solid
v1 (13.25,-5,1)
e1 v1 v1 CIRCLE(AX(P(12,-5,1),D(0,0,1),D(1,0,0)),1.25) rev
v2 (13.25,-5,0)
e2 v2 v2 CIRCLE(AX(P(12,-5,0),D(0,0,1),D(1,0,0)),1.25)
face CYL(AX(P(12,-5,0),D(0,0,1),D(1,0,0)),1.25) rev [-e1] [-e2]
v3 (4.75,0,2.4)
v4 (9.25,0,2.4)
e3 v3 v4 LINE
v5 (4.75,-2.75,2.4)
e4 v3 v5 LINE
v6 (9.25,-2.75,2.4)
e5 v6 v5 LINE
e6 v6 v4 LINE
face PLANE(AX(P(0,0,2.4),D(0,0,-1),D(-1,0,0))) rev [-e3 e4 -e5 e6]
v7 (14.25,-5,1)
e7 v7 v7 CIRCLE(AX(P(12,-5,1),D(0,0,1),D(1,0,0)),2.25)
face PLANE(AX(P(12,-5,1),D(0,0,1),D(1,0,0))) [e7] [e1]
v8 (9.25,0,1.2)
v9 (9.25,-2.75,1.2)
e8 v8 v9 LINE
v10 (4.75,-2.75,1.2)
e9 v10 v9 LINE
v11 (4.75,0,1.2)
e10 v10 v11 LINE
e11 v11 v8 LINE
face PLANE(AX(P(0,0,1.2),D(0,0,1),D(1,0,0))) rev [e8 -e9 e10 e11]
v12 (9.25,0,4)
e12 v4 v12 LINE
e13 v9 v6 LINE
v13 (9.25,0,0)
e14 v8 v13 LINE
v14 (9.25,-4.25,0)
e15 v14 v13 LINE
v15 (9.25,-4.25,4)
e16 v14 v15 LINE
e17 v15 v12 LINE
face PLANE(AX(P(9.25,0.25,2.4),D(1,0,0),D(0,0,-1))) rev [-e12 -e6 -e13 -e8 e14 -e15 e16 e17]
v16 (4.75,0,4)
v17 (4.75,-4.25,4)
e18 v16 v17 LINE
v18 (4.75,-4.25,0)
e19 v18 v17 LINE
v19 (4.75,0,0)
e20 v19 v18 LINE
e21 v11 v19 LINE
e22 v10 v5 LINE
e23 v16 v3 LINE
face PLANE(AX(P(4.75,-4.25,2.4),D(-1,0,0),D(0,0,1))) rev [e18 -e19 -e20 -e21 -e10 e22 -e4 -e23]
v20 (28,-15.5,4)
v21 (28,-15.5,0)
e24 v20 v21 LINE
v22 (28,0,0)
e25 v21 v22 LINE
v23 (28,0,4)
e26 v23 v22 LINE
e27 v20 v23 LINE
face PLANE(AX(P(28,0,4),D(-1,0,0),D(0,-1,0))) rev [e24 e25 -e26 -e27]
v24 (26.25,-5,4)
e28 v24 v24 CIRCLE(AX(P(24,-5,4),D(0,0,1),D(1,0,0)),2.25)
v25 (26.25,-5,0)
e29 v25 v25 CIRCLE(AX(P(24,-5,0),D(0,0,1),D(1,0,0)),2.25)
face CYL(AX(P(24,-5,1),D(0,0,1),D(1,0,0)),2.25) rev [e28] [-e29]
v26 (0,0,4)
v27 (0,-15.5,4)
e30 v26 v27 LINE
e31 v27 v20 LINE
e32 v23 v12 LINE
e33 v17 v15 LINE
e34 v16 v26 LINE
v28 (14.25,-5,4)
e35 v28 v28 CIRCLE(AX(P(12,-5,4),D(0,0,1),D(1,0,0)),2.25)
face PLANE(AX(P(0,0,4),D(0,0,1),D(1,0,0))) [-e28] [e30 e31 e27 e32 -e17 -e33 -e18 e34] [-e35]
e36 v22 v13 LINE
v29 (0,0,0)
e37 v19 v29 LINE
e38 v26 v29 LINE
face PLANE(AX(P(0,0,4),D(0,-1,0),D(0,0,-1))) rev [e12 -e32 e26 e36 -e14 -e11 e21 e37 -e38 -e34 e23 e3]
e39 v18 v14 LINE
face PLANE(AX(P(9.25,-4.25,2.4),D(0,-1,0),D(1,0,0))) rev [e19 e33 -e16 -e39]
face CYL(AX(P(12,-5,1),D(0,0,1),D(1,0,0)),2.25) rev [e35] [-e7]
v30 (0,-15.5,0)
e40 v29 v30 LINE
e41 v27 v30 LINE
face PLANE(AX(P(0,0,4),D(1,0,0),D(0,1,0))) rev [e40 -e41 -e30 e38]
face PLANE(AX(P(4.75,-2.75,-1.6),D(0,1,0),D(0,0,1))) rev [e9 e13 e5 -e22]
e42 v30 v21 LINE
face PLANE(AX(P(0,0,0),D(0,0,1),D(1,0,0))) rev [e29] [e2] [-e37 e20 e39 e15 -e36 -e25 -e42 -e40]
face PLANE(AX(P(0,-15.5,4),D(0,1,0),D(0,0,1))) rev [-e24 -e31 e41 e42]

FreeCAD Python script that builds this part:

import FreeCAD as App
import Part
import Sketcher
from FreeCAD import Vector


def add_polygon(sketch, points):
    """Adds a closed chain of lines whose ends are joined by coincident constraints."""
    first, n = sketch.GeometryCount, len(points)
    for a, b in zip(points, points[1:] + points[:1]):
        sketch.addGeometry(Part.LineSegment(App.Vector(*a, 0), App.Vector(*b, 0)), False)
    for i in range(n):
        sketch.addConstraint(Sketcher.Constraint("Coincident", first + i, 2, first + (i + 1) % n, 1))

doc = App.newDocument("Part")
body = doc.addObject("PartDesign::Body", "Body")

sketch1 = body.newObject("Sketcher::SketchObject", "Sketch")
sketch1.AttachmentSupport = (doc.getObject("XY_Plane"), [""])
sketch1.MapMode = "FlatFace"
add_polygon(sketch1, [(0, 0), (0, -16), (28, -16), (28, 0)])
sketch1.addConstraint([
    Sketcher.Constraint("Vertical", 0),
    Sketcher.Constraint("Horizontal", 1),
    Sketcher.Constraint("Vertical", 2),
    Sketcher.Constraint("Horizontal", 3),
    Sketcher.Constraint("Coincident", 3, 2, -1, 1),
    Sketcher.Constraint("DistanceX", 1, 1, 1, 2, 28.0),
    Sketcher.Constraint("DistanceY", 0, 2, 0, 1, 15.5),
])
pad1 = body.newObject("PartDesign::Pad", "Pad")
pad1.Profile = sketch1
pad1.Length = 4

sketch2 = body.newObject("Sketcher::SketchObject", "Sketch001")
sketch2.AttachmentSupport = (doc.getObject("XY_Plane"), [""])
sketch2.MapMode = "FlatFace"
sketch2.AttachmentOffset = App.Placement(Vector(0, 0, 4), App.Rotation())
sketch2.addGeometry([
    Part.Circle(Vector(12, -5, 0), Vector(0, 0, 1), 1.2),
    Part.Circle(Vector(24, -5, 0), Vector(0, 0, 1), 1.2),
], False)
sketch2.addConstraint([
    Sketcher.Constraint("Equal", 0, 1),
    Sketcher.Constraint("Horizontal", 0, 3, 1, 3),
    Sketcher.Constraint("Diameter", 0, 2.5),
    Sketcher.Constraint("DistanceX", -1, 1, 0, 3, 12.0),
    Sketcher.Constraint("DistanceY", 0, 3, -1, 1, 5.0),
    Sketcher.Constraint("DistanceX", -1, 1, 1, 3, 24.0),
])
pocket1 = body.newObject("PartDesign::Pocket", "Pocket")
pocket1.Profile = sketch2
pocket1.Length = 4

sketch3 = body.newObject("Sketcher::SketchObject", "Sketch002")
sketch3.AttachmentSupport = (doc.getObject("XY_Plane"), [""])
sketch3.MapMode = "FlatFace"
sketch3.AttachmentOffset = App.Placement(Vector(0, 0, 4), App.Rotation())
sketch3.addGeometry([
    Part.Circle(Vector(12, -5, 0), Vector(0, 0, 1), 2.2),
    Part.Circle(Vector(24, -5, 0), Vector(0, 0, 1), 2.2),
], False)
sketch3.addConstraint([
    Sketcher.Constraint("Equal", 0, 1),
    Sketcher.Constraint("Horizontal", 0, 3, 1, 3),
    Sketcher.Constraint("Diameter", 0, 4.5),
    Sketcher.Constraint("DistanceX", -1, 1, 0, 3, 12.0),
    Sketcher.Constraint("DistanceY", 0, 3, -1, 1, 5.0),
    Sketcher.Constraint("DistanceX", -1, 1, 1, 3, 24.0),
])
pocket2 = body.newObject("PartDesign::Pocket", "Pocket001")
pocket2.Profile = sketch3
pocket2.Length = 3

sketch4 = body.newObject("Sketcher::SketchObject", "Sketch003")
sketch4.AttachmentSupport = (doc.getObject("XY_Plane"), [""])
sketch4.MapMode = "FlatFace"
sketch4.AttachmentOffset = App.Placement(Vector(0, 0, 4), App.Rotation())
add_polygon(sketch4, [(4.8, 0.2), (4.8, -4.2), (9.2, -4.2), (9.2, 0.2)])
sketch4.addConstraint([
    Sketcher.Constraint("Vertical", 0),
    Sketcher.Constraint("Horizontal", 1),
    Sketcher.Constraint("Vertical", 2),
    Sketcher.Constraint("Horizontal", 3),
    Sketcher.Constraint("Equal", 3, 0),
    Sketcher.Constraint("DistanceX", 1, 1, 1, 2, 4.5),
    Sketcher.Constraint("DistanceX", -1, 1, 0, 2, 4.75),
    Sketcher.Constraint("DistanceY", 0, 2, -1, 1, 4.25),
])
pocket3 = body.newObject("PartDesign::Pocket", "Pocket002")
pocket3.Profile = sketch4
pocket3.Length = 1.6

sketch5 = body.newObject("Sketcher::SketchObject", "Sketch004")
sketch5.AttachmentSupport = (doc.getObject("XY_Plane"), [""])
sketch5.MapMode = "FlatFace"
sketch5.AttachmentOffset = App.Placement(Vector(0, 0, 2.4), App.Rotation())
add_polygon(sketch5, [(4.8, -2.8), (4.8, -4.2), (9.2, -4.2), (9.2, -2.8)])
sketch5.addConstraint([
    Sketcher.Constraint("Vertical", 0),
    Sketcher.Constraint("Horizontal", 1),
    Sketcher.Constraint("Vertical", 2),
    Sketcher.Constraint("Horizontal", 3),
    Sketcher.Constraint("DistanceX", 1, 1, 1, 2, 4.5),
    Sketcher.Constraint("DistanceY", 0, 2, 0, 1, 1.5),
    Sketcher.Constraint("DistanceX", -1, 1, 0, 2, 4.75),
    Sketcher.Constraint("DistanceY", 0, 2, -1, 1, 4.25),
])
pocket4 = body.newObject("PartDesign::Pocket", "Pocket003")
pocket4.Profile = sketch5
pocket4.Length = 4

sketch6 = body.newObject("Sketcher::SketchObject", "Sketch005")
sketch6.AttachmentSupport = (doc.getObject("XY_Plane"), [""])
sketch6.MapMode = "FlatFace"
add_polygon(sketch6, [(9.2, 0), (9.2, -4.2), (4.8, -4.2), (4.8, 0)])
sketch6.addConstraint([
    Sketcher.Constraint("Vertical", 0),
    Sketcher.Constraint("Horizontal", 1),
    Sketcher.Constraint("Vertical", 2),
    Sketcher.Constraint("Horizontal", 3),
    Sketcher.Constraint("PointOnObject", 2, 2, -1),
    Sketcher.Constraint("DistanceX", 1, 2, 1, 1, 4.5),
    Sketcher.Constraint("DistanceY", 0, 2, 0, 1, 4.25),
    Sketcher.Constraint("DistanceX", -1, 1, 0, 2, 9.25),
])
pocket5 = body.newObject("PartDesign::Pocket", "Pocket004")
pocket5.Profile = sketch6
pocket5.Length = 1.2
pocket5.Reversed = True

sketch7 = body.newObject("Sketcher::SketchObject", "Sketch006")
sketch7.AttachmentSupport = (doc.getObject("XY_Plane"), [""])
sketch7.MapMode = "FlatFace"
sketch7.AttachmentOffset = App.Placement(Vector(0, 0, 4), App.Rotation())
sketch7.addGeometry(Part.Circle(Vector(24, -5, 0), Vector(0, 0, 1), 2.2), False)
sketch7.addConstraint([
    Sketcher.Constraint("Diameter", 0, 4.5),
    Sketcher.Constraint("DistanceX", -1, 1, 0, 3, 24.0),
    Sketcher.Constraint("DistanceY", 0, 3, -1, 1, 5.0),
])
pocket6 = body.newObject("PartDesign::Pocket", "Pocket005")
pocket6.Profile = sketch7
pocket6.Length = 10

doc.recompute()
